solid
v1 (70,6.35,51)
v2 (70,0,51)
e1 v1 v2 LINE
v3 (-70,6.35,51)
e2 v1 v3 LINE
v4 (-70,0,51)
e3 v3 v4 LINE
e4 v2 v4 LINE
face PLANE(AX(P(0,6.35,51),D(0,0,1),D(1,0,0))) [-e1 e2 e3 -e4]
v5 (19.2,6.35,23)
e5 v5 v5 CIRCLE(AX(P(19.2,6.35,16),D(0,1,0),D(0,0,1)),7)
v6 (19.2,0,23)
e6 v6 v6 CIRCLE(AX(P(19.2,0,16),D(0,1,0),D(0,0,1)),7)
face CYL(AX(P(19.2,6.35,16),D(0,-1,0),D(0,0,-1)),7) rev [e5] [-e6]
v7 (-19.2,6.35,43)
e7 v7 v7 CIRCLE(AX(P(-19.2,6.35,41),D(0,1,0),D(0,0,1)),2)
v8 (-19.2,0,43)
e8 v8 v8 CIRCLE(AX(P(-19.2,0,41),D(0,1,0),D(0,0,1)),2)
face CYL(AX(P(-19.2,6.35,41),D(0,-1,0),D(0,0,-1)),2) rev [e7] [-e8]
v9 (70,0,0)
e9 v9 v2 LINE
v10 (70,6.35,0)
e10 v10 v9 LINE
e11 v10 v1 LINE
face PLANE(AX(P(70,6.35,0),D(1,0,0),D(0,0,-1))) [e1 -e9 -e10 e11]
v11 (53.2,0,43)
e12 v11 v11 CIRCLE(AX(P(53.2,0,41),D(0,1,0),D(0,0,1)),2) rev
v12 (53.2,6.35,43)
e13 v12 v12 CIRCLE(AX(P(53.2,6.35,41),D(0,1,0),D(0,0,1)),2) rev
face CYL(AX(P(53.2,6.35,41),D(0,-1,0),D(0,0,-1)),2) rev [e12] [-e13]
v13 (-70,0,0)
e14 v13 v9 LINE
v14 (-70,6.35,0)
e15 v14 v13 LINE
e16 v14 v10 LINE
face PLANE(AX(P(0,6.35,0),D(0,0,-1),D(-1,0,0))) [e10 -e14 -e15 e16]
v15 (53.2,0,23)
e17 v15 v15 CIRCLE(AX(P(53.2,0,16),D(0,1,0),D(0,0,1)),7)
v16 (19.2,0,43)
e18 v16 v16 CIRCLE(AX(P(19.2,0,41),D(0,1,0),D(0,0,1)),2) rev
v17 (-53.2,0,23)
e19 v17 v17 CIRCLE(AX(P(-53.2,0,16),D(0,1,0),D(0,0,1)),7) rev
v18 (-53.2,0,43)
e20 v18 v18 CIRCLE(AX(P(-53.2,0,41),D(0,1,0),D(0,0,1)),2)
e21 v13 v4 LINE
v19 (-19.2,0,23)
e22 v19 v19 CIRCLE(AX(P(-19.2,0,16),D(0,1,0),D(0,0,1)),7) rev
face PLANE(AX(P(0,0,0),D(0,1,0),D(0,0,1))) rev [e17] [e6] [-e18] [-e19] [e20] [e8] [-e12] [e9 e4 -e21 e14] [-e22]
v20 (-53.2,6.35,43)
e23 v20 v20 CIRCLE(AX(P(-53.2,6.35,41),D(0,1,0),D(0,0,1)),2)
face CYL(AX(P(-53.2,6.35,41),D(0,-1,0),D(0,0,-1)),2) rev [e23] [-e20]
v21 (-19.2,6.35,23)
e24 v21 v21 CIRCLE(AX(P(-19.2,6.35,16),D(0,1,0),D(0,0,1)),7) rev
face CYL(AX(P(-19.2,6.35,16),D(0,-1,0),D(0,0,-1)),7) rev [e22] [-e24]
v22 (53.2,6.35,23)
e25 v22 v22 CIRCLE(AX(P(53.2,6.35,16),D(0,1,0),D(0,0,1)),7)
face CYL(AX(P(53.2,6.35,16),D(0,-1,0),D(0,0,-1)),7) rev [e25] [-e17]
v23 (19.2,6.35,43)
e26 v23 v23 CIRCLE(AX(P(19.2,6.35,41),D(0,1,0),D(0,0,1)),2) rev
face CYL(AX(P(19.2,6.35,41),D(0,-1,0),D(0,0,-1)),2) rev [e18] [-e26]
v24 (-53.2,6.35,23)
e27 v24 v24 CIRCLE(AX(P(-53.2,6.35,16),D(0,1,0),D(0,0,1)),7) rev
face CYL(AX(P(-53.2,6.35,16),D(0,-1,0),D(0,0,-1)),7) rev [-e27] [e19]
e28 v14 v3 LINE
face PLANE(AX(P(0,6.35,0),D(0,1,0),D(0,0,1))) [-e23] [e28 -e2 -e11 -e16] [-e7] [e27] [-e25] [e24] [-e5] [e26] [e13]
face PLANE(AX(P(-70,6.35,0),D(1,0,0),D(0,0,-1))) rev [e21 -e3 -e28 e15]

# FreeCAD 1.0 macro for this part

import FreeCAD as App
import Part
import Sketcher
Q = App.Units.Quantity

doc = App.newDocument("Part")
body = doc.addObject("PartDesign::Body", "Body")

sketch1 = body.newObject("Sketcher::SketchObject", "Sketch")
sketch1.AttachmentSupport = (doc.getObject("XZ_Plane"), [""])
sketch1.MapMode = "FlatFace"
sketch1.addGeometry(Part.LineSegment(App.Vector(-70, 0, 0), App.Vector(-70, 51, 0)), False)
sketch1.addGeometry(Part.LineSegment(App.Vector(-70, 51, 0), App.Vector(70, 51, 0)), False)
sketch1.addGeometry(Part.LineSegment(App.Vector(70, 51, 0), App.Vector(70, 0, 0)), False)
sketch1.addGeometry(Part.LineSegment(App.Vector(70, 0, 0), App.Vector(-70, 0, 0)), False)
sketch1.addGeometry(Part.Circle(App.Vector(-53.2, 41, 0), App.Vector(0, 0, 1), 2), False)
sketch1.addGeometry(Part.Circle(App.Vector(-19.2, 41, 0), App.Vector(0, 0, 1), 2), False)
sketch1.addGeometry(Part.Circle(App.Vector(19.2, 41, 0), App.Vector(0, 0, 1), 2), False)
sketch1.addGeometry(Part.Circle(App.Vector(53.2, 41, 0), App.Vector(0, 0, 1), 2), False)
sketch1.addGeometry(Part.Circle(App.Vector(-53.2, 16, 0), App.Vector(0, 0, 1), 7), False)
sketch1.addGeometry(Part.Circle(App.Vector(-19.2, 16, 0), App.Vector(0, 0, 1), 7), False)
sketch1.addGeometry(Part.Circle(App.Vector(19.2, 16, 0), App.Vector(0, 0, 1), 7), False)
sketch1.addGeometry(Part.Circle(App.Vector(53.2, 16, 0), App.Vector(0, 0, 1), 7), False)
sketch1.addConstraint(Sketcher.Constraint("Coincident", 0, 2, 1, 1))
sketch1.addConstraint(Sketcher.Constraint("Coincident", 1, 2, 2, 1))
sketch1.addConstraint(Sketcher.Constraint("Coincident", 2, 2, 3, 1))
sketch1.addConstraint(Sketcher.Constraint("Coincident", 3, 2, 0, 1))
sketch1.addConstraint(Sketcher.Constraint("Vertical", 0))
sketch1.addConstraint(Sketcher.Constraint("Horizontal", 1))
sketch1.addConstraint(Sketcher.Constraint("Vertical", 2))
sketch1.addConstraint(Sketcher.Constraint("Horizontal", 3))
sketch1.addConstraint(Sketcher.Constraint("Equal", 4, 5))
sketch1.addConstraint(Sketcher.Constraint("Equal", 5, 6))
sketch1.addConstraint(Sketcher.Constraint("Equal", 6, 7))
sketch1.addConstraint(Sketcher.Constraint("Equal", 8, 9))
sketch1.addConstraint(Sketcher.Constraint("Equal", 9, 10))
sketch1.addConstraint(Sketcher.Constraint("Equal", 10, 11))
sketch1.addConstraint(Sketcher.Constraint("Symmetric", 2, 2, 3, 2, -1, 1))
sketch1.addConstraint(Sketcher.Constraint("Symmetric", 5, 3, 6, 3, -2))
sketch1.addConstraint(Sketcher.Constraint("Symmetric", 4, 3, 7, 3, -2))
sketch1.addConstraint(Sketcher.Constraint("Symmetric", 9, 3, 10, 3, -2))
sketch1.addConstraint(Sketcher.Constraint("Symmetric", 8, 3, 11, 3, -2))
sketch1.addConstraint(Sketcher.Constraint("Horizontal", 4, 3, 5, 3))
sketch1.addConstraint(Sketcher.Constraint("Horizontal", 8, 3, 9, 3))
sketch1.addConstraint(Sketcher.Constraint("Vertical", 4, 3, 8, 3))
sketch1.addConstraint(Sketcher.Constraint("Vertical", 5, 3, 9, 3))
sketch1.addConstraint(Sketcher.Constraint("Diameter", 4, Q("4 mm")))
sketch1.addConstraint(Sketcher.Constraint("Diameter", 8, Q("14 mm")))
sketch1.addConstraint(Sketcher.Constraint("DistanceX", 1, 1, 1, 2, Q("140 mm")))
sketch1.addConstraint(Sketcher.Constraint("DistanceY", 0, 1, 0, 2, Q("51 mm")))
sketch1.addConstraint(Sketcher.Constraint("DistanceY", -1, 1, 4, 3, Q("41 mm")))
sketch1.addConstraint(Sketcher.Constraint("DistanceY", -1, 1, 8, 3, Q("16 mm")))
sketch1.addConstraint(Sketcher.Constraint("DistanceX", 4, 3, 5, 3, Q("34 mm")))
sketch1.addConstraint(Sketcher.Constraint("DistanceX", 4, 3, -1, 1, Q("53.2 mm")))
pad1 = body.newObject("PartDesign::Pad", "Pad")
pad1.Profile = sketch1
pad1.Length = 6.35
pad1.Reversed = True

doc.recompute()
